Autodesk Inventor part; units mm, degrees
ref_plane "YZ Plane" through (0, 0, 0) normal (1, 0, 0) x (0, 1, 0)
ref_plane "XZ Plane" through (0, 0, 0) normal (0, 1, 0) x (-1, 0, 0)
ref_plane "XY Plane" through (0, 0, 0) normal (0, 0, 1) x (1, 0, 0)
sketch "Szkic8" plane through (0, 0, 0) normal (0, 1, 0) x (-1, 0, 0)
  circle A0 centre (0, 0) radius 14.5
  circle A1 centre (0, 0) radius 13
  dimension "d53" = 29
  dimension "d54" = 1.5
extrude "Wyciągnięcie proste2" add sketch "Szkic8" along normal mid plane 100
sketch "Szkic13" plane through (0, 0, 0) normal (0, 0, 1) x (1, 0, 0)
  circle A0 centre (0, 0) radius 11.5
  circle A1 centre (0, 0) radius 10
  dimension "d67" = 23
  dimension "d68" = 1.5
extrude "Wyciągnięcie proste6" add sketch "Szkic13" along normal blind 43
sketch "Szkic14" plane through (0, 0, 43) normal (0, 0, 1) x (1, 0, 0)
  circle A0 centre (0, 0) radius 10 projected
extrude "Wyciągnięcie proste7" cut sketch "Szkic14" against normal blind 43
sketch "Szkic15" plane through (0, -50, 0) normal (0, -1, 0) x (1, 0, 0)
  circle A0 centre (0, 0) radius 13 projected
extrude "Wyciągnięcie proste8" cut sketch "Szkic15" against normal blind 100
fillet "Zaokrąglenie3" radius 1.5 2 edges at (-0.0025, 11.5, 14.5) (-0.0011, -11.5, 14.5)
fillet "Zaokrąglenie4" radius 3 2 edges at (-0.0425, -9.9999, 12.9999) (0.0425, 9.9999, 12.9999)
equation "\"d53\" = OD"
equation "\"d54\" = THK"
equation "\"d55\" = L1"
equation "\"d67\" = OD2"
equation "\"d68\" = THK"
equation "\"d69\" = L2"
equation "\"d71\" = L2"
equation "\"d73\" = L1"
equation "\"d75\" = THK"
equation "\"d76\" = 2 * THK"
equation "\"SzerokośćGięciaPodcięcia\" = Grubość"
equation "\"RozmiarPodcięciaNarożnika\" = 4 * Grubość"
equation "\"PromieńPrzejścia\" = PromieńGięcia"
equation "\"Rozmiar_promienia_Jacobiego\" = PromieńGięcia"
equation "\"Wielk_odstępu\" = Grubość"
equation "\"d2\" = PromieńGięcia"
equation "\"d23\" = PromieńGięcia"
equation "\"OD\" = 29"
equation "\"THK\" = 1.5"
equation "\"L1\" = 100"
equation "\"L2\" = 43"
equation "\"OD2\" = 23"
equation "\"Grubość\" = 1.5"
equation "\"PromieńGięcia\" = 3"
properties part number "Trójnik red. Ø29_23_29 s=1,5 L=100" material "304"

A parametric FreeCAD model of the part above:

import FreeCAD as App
import Part
import Sketcher
from FreeCAD import Vector


def edges_at(feature, points):
    """Names of the edges that pass closest to the given points."""
    edges = feature.Shape.Edges
    near = lambda p: min(range(len(edges)), key=lambda i: edges[i].distToShape(Part.Vertex(*p))[0])
    return sorted({f"Edge{near(p) + 1}" for p in points})

doc = App.newDocument("Part")
body = doc.addObject("PartDesign::Body", "Body")

# Sketch on XZ plane
sketch1 = body.newObject("Sketcher::SketchObject", "Sketch")
sketch1.AttachmentSupport = (doc.getObject("XZ_Plane"), [""])
sketch1.MapMode = "FlatFace"
sketch1.addGeometry([
    Part.Circle(Vector(0, 0, 0), Vector(0, 0, 1), 14.5),
    Part.Circle(Vector(0, 0, 0), Vector(0, 0, 1), 13),
], False)
sketch1.addConstraint([
    Sketcher.Constraint("Coincident", 0, 3, -1, 1),
    Sketcher.Constraint("Coincident", 1, 3, -1, 1),
    Sketcher.Constraint("Diameter", 0, 29.0),
    Sketcher.Constraint("Diameter", 1, 26.0),
])
pad1 = body.newObject("PartDesign::Pad", "Pad")
pad1.Profile = sketch1
pad1.Length = 100
pad1.Midplane = True

# Sketch on XY plane
sketch2 = body.newObject("Sketcher::SketchObject", "Sketch001")
sketch2.AttachmentSupport = (doc.getObject("XY_Plane"), [""])
sketch2.MapMode = "FlatFace"
sketch2.addGeometry([
    Part.Circle(Vector(0, 0, 0), Vector(0, 0, 1), 11.5),
    Part.Circle(Vector(0, 0, 0), Vector(0, 0, 1), 10),
], False)
sketch2.addConstraint([
    Sketcher.Constraint("Coincident", 0, 3, -1, 1),
    Sketcher.Constraint("Coincident", 1, 3, -1, 1),
    Sketcher.Constraint("Diameter", 0, 23.0),
    Sketcher.Constraint("Diameter", 1, 20.0),
])
pad2 = body.newObject("PartDesign::Pad", "Pad001")
pad2.Profile = sketch2
pad2.Length = 43

# Sketch on XY plane
sketch3 = body.newObject("Sketcher::SketchObject", "Sketch002")
sketch3.AttachmentSupport = (doc.getObject("XY_Plane"), [""])
sketch3.MapMode = "FlatFace"
sketch3.AttachmentOffset = App.Placement(Vector(0, 0, 43), App.Rotation())
sketch3.addGeometry(Part.Circle(Vector(0, 0, 0), Vector(0, 0, 1), 10), False)
sketch3.addConstraint([
    Sketcher.Constraint("Coincident", 0, 3, -1, 1),
    Sketcher.Constraint("Diameter", 0, 20.0),
])
pocket1 = body.newObject("PartDesign::Pocket", "Pocket")
pocket1.Profile = sketch3
pocket1.Length = 43

# Sketch on XZ plane
sketch4 = body.newObject("Sketcher::SketchObject", "Sketch003")
sketch4.AttachmentSupport = (doc.getObject("XZ_Plane"), [""])
sketch4.MapMode = "FlatFace"
sketch4.AttachmentOffset = App.Placement(Vector(0, 0, 50), App.Rotation())
sketch4.addGeometry(Part.Circle(Vector(0, 0, 0), Vector(0, 0, 1), 13), False)
sketch4.addConstraint([
    Sketcher.Constraint("Coincident", 0, 3, -1, 1),
    Sketcher.Constraint("Diameter", 0, 26.0),
])
pocket2 = body.newObject("PartDesign::Pocket", "Pocket001")
pocket2.Profile = sketch4
pocket2.Length = 100
doc.recompute()

fillet = body.newObject("PartDesign::Fillet", "Fillet")
fillet.Base = (pocket2, edges_at(pocket2, [(-0.003, 11.5, 14.5), (-0.001, -11.5, 14.5)]))
fillet.Radius = 1.5
doc.recompute()

fillet2 = body.newObject("PartDesign::Fillet", "Fillet001")
fillet2.Base = (fillet, edges_at(fillet, [(-0.043, -10, 13), (0.043, 10, 13)]))
fillet2.Radius = 3

doc.recompute()
